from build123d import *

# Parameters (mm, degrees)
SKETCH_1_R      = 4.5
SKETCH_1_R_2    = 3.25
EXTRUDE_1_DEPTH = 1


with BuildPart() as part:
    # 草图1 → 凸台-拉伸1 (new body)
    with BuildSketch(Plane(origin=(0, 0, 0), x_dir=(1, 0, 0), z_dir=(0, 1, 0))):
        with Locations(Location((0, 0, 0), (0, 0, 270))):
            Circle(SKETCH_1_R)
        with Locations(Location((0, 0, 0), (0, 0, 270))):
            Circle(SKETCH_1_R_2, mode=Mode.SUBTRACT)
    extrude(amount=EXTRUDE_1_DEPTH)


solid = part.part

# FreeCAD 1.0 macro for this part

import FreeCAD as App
import Part
import Sketcher

doc = App.newDocument("Part")
params = doc.addObject("Spreadsheet::Sheet", "Params")
for row, (alias, value) in enumerate([
    ("sketch1_diameter", "9 mm"),
    ("sketch1_diameter2", "6.5 mm"),
    ("pad1_length", "1 mm"),
], start=1):
    params.set(f"A{row}", alias)
    params.set(f"B{row}", "=" + value)
    params.setAlias(f"B{row}", alias)

body = doc.addObject("PartDesign::Body", "Body")

# Sketch on XZ plane
sketch1 = body.newObject("Sketcher::SketchObject", "Sketch")
sketch1.AttachmentSupport = (doc.getObject("XZ_Plane"), [""])
sketch1.MapMode = "FlatFace"
sketch1.addGeometry([
    Part.Circle(App.Vector(0, 0, 0), App.Vector(0, 0, 1), 4.5),
    Part.Circle(App.Vector(0, 0, 0), App.Vector(0, 0, 1), 3.2),
], False)
sketch1.addConstraint([
    Sketcher.Constraint("Coincident", 0, 3, -1, 1),
    Sketcher.Constraint("Coincident", 1, 3, -1, 1),
    Sketcher.Constraint("Diameter", 0, 9.0),
    Sketcher.Constraint("Diameter", 1, 6.5),
])
sketch1.setExpression("Constraints[2]", "Params.sketch1_diameter")
sketch1.setExpression("Constraints[3]", "Params.sketch1_diameter2")
pad1 = body.newObject("PartDesign::Pad", "Pad")
pad1.Profile = sketch1
pad1.setExpression("Length", "Params.pad1_length")
pad1.Reversed = True

doc.recompute()
